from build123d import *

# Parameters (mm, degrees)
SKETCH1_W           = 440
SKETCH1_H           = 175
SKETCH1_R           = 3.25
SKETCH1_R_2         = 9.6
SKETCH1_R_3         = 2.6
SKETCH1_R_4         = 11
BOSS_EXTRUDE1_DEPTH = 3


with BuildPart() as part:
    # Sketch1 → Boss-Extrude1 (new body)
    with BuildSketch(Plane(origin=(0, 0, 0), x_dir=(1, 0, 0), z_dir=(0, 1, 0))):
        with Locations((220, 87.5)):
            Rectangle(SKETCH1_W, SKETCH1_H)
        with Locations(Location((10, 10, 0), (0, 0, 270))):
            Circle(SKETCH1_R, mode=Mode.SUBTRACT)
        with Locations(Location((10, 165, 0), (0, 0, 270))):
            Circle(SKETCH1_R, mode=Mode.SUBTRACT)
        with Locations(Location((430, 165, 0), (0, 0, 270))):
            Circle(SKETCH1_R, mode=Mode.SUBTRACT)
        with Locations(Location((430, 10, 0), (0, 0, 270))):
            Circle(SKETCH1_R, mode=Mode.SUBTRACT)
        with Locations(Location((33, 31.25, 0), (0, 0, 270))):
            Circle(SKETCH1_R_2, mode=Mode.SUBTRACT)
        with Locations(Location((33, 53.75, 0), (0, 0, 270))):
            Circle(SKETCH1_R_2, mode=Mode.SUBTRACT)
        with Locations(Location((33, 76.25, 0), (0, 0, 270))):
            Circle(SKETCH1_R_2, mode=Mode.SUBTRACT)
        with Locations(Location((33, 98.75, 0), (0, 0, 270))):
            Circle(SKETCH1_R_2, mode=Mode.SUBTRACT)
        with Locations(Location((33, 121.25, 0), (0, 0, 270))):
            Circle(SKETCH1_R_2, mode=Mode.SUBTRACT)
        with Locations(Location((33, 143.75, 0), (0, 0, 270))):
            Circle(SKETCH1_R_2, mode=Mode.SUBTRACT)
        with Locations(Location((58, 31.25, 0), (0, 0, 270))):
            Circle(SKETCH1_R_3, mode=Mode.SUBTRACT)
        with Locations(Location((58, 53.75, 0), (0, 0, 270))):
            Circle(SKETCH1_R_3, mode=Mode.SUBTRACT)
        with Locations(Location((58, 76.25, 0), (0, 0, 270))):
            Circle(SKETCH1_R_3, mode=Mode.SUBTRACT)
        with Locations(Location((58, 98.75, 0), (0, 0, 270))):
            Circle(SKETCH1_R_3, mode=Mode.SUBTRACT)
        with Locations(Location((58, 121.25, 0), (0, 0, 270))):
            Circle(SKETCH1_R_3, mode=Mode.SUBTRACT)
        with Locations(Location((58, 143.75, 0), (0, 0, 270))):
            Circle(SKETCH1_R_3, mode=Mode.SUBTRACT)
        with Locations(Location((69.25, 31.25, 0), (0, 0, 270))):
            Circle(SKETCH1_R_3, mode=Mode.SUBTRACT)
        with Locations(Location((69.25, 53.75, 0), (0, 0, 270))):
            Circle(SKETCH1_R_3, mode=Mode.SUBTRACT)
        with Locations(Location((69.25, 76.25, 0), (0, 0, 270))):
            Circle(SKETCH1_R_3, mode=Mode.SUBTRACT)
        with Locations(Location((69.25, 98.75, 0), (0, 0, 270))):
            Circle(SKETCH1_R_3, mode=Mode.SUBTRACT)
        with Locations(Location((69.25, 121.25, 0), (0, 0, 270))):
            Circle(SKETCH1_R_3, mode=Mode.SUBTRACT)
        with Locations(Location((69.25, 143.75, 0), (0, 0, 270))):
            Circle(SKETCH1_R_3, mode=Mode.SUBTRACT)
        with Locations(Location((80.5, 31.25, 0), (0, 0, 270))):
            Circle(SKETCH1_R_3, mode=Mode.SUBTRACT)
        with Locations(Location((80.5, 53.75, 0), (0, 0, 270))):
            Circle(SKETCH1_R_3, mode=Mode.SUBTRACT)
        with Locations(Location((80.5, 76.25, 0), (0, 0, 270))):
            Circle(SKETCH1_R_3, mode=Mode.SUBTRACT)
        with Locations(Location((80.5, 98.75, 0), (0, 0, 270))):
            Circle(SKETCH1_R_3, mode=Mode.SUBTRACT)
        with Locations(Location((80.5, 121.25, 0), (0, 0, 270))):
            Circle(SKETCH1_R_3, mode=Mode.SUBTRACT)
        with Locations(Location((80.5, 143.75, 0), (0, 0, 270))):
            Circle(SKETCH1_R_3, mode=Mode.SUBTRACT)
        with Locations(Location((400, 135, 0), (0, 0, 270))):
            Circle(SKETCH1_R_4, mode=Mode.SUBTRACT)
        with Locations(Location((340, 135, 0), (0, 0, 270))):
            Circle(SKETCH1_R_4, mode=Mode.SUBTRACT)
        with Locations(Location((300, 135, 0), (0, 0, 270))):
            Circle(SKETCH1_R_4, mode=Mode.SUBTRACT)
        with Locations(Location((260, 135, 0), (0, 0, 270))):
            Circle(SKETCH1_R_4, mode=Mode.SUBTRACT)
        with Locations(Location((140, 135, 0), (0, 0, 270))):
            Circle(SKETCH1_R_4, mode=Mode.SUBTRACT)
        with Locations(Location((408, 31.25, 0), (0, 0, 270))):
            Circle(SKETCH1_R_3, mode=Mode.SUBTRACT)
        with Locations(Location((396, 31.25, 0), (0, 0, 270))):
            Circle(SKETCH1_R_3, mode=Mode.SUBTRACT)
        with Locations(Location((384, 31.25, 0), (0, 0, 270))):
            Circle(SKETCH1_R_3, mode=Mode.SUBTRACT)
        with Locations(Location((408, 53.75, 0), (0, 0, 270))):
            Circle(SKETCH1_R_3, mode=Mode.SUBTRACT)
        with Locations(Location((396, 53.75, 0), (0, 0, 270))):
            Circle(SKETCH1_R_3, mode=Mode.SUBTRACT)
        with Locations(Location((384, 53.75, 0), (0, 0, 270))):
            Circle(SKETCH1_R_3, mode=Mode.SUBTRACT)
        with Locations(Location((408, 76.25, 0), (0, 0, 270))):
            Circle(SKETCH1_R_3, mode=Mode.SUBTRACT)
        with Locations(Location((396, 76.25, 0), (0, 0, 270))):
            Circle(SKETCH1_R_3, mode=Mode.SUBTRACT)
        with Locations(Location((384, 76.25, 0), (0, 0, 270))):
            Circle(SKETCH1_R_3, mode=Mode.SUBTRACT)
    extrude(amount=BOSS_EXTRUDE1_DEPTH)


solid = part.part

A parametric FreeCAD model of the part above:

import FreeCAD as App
import Part
import Sketcher


def add_polygon(sketch, points):
    """Adds a closed chain of lines whose ends are joined by coincident constraints."""
    first, n = sketch.GeometryCount, len(points)
    for a, b in zip(points, points[1:] + points[:1]):
        sketch.addGeometry(Part.LineSegment(App.Vector(*a, 0), App.Vector(*b, 0)), False)
    for i in range(n):
        sketch.addConstraint(Sketcher.Constraint("Coincident", first + i, 2, first + (i + 1) % n, 1))

doc = App.newDocument("Part")
body = doc.addObject("PartDesign::Body", "Body")

# Sketch on XZ plane
sketch1 = body.newObject("Sketcher::SketchObject", "Sketch")
sketch1.AttachmentSupport = (doc.getObject("XZ_Plane"), [""])
sketch1.MapMode = "FlatFace"
add_polygon(sketch1, [(0, -175), (0, 0), (440, 0), (440, -175)])  # lines 0-3
sketch1.addGeometry(Part.Circle(App.Vector(10, -10, 0), App.Vector(0, 0, 1), 3.25), False)  # 4
sketch1.addGeometry(Part.Circle(App.Vector(33, -31.25, 0), App.Vector(0, 0, 1), 9.6), False)  # 5
sketch1.addGeometry(Part.Circle(App.Vector(58, -31.25, 0), App.Vector(0, 0, 1), 2.6), False)  # 6
sketch1.addGeometry(Part.Circle(App.Vector(69.25, -31.25, 0), App.Vector(0, 0, 1), 2.6), False)  # 7
sketch1.addGeometry(Part.Circle(App.Vector(80.5, -31.25, 0), App.Vector(0, 0, 1), 2.6), False)  # 8
sketch1.addGeometry(Part.Circle(App.Vector(33, -53.75, 0), App.Vector(0, 0, 1), 9.6), False)  # 9
sketch1.addGeometry(Part.Circle(App.Vector(58, -53.75, 0), App.Vector(0, 0, 1), 2.6), False)  # 10
sketch1.addGeometry(Part.Circle(App.Vector(69.25, -53.75, 0), App.Vector(0, 0, 1), 2.6), False)  # 11
sketch1.addGeometry(Part.Circle(App.Vector(80.5, -53.75, 0), App.Vector(0, 0, 1), 2.6), False)  # 12
sketch1.addGeometry(Part.Circle(App.Vector(33, -76.25, 0), App.Vector(0, 0, 1), 9.6), False)  # 13
sketch1.addGeometry(Part.Circle(App.Vector(58, -76.25, 0), App.Vector(0, 0, 1), 2.6), False)  # 14
sketch1.addGeometry(Part.Circle(App.Vector(69.25, -76.25, 0), App.Vector(0, 0, 1), 2.6), False)  # 15
sketch1.addGeometry(Part.Circle(App.Vector(80.5, -76.25, 0), App.Vector(0, 0, 1), 2.6), False)  # 16
sketch1.addGeometry(Part.Circle(App.Vector(430, -10, 0), App.Vector(0, 0, 1), 3.25), False)  # 17
sketch1.addGeometry(Part.Circle(App.Vector(384, -31.25, 0), App.Vector(0, 0, 1), 2.6), False)  # 18
sketch1.addGeometry(Part.Circle(App.Vector(396, -31.25, 0), App.Vector(0, 0, 1), 2.6), False)  # 19
sketch1.addGeometry(Part.Circle(App.Vector(408, -31.25, 0), App.Vector(0, 0, 1), 2.6), False)  # 20
sketch1.addGeometry(Part.Circle(App.Vector(384, -53.75, 0), App.Vector(0, 0, 1), 2.6), False)  # 21
sketch1.addGeometry(Part.Circle(App.Vector(396, -53.75, 0), App.Vector(0, 0, 1), 2.6), False)  # 22
sketch1.addGeometry(Part.Circle(App.Vector(408, -53.75, 0), App.Vector(0, 0, 1), 2.6), False)  # 23
sketch1.addGeometry(Part.Circle(App.Vector(384, -76.25, 0), App.Vector(0, 0, 1), 2.6), False)  # 24
sketch1.addGeometry(Part.Circle(App.Vector(396, -76.25, 0), App.Vector(0, 0, 1), 2.6), False)  # 25
sketch1.addGeometry(Part.Circle(App.Vector(408, -76.25, 0), App.Vector(0, 0, 1), 2.6), False)  # 26
sketch1.addGeometry(Part.Circle(App.Vector(33, -98.75, 0), App.Vector(0, 0, 1), 9.6), False)  # 27
sketch1.addGeometry(Part.Circle(App.Vector(58, -98.75, 0), App.Vector(0, 0, 1), 2.6), False)  # 28
sketch1.addGeometry(Part.Circle(App.Vector(69.25, -98.75, 0), App.Vector(0, 0, 1), 2.6), False)  # 29
sketch1.addGeometry(Part.Circle(App.Vector(80.5, -98.75, 0), App.Vector(0, 0, 1), 2.6), False)  # 30
sketch1.addGeometry(Part.Circle(App.Vector(33, -121.25, 0), App.Vector(0, 0, 1), 9.6), False)  # 31
sketch1.addGeometry(Part.Circle(App.Vector(58, -121.25, 0), App.Vector(0, 0, 1), 2.6), False)  # 32
sketch1.addGeometry(Part.Circle(App.Vector(69.25, -121.25, 0), App.Vector(0, 0, 1), 2.6), False)  # 33
sketch1.addGeometry(Part.Circle(App.Vector(80.5, -121.25, 0), App.Vector(0, 0, 1), 2.6), False)  # 34
sketch1.addGeometry(Part.Circle(App.Vector(33, -143.75, 0), App.Vector(0, 0, 1), 9.6), False)  # 35
sketch1.addGeometry(Part.Circle(App.Vector(58, -143.75, 0), App.Vector(0, 0, 1), 2.6), False)  # 36
sketch1.addGeometry(Part.Circle(App.Vector(69.25, -143.75, 0), App.Vector(0, 0, 1), 2.6), False)  # 37
sketch1.addGeometry(Part.Circle(App.Vector(80.5, -143.75, 0), App.Vector(0, 0, 1), 2.6), False)  # 38
sketch1.addGeometry(Part.Circle(App.Vector(10, -165, 0), App.Vector(0, 0, 1), 3.25), False)  # 39
sketch1.addGeometry(Part.Circle(App.Vector(140, -135, 0), App.Vector(0, 0, 1), 11), False)  # 40
sketch1.addGeometry(Part.Circle(App.Vector(260, -135, 0), App.Vector(0, 0, 1), 11), False)  # 41
sketch1.addGeometry(Part.Circle(App.Vector(300, -135, 0), App.Vector(0, 0, 1), 11), False)  # 42
sketch1.addGeometry(Part.Circle(App.Vector(340, -135, 0), App.Vector(0, 0, 1), 11), False)  # 43
sketch1.addGeometry(Part.Circle(App.Vector(400, -135, 0), App.Vector(0, 0, 1), 11), False)  # 44
sketch1.addGeometry(Part.Circle(App.Vector(430, -165, 0), App.Vector(0, 0, 1), 3.25), False)  # 45
sketch1.addConstraint([
    Sketcher.Constraint("Vertical", 0),
    Sketcher.Constraint("Horizontal", 1),
    Sketcher.Constraint("Vertical", 2),
    Sketcher.Constraint("Horizontal", 3),
    Sketcher.Constraint("Coincident", 0, 2, -1, 1),
    Sketcher.Constraint("Equal", 6, 7),
    Sketcher.Constraint("Equal", 7, 8),
    Sketcher.Constraint("Equal", 5, 9),
    Sketcher.Constraint("Equal", 8, 10),
    Sketcher.Constraint("Equal", 10, 11),
    Sketcher.Constraint("Equal", 11, 12),
    Sketcher.Constraint("Equal", 9, 13),
    Sketcher.Constraint("Equal", 12, 14),
    Sketcher.Constraint("Equal", 14, 15),
    Sketcher.Constraint("Equal", 15, 16),
    Sketcher.Constraint("Equal", 4, 17),
    Sketcher.Constraint("Equal", 16, 18),
    Sketcher.Constraint("Equal", 18, 19),
    Sketcher.Constraint("Equal", 19, 20),
    Sketcher.Constraint("Equal", 20, 21),
    Sketcher.Constraint("Equal", 21, 22),
    Sketcher.Constraint("Equal", 22, 23),
    Sketcher.Constraint("Equal", 23, 24),
    Sketcher.Constraint("Equal", 24, 25),
    Sketcher.Constraint("Equal", 25, 26),
    Sketcher.Constraint("Equal", 13, 27),
    Sketcher.Constraint("Equal", 26, 28),
    Sketcher.Constraint("Equal", 28, 29),
    Sketcher.Constraint("Equal", 29, 30),
    Sketcher.Constraint("Equal", 27, 31),
    Sketcher.Constraint("Equal", 30, 32),
    Sketcher.Constraint("Equal", 32, 33),
    Sketcher.Constraint("Equal", 33, 34),
    Sketcher.Constraint("Equal", 31, 35),
    Sketcher.Constraint("Equal", 34, 36),
    Sketcher.Constraint("Equal", 36, 37),
    Sketcher.Constraint("Equal", 37, 38),
    Sketcher.Constraint("Equal", 17, 39),
    Sketcher.Constraint("Equal", 40, 41),
    Sketcher.Constraint("Equal", 41, 42),
    Sketcher.Constraint("Equal", 42, 43),
    Sketcher.Constraint("Equal", 43, 44),
    Sketcher.Constraint("Equal", 39, 45),
    Sketcher.Constraint("Horizontal", 5, 3, 6, 3),
    Sketcher.Constraint("Horizontal", 6, 3, 7, 3),
    Sketcher.Constraint("Horizontal", 7, 3, 8, 3),
    Sketcher.Constraint("Horizontal", 9, 3, 10, 3),
    Sketcher.Constraint("Horizontal", 10, 3, 11, 3),
    Sketcher.Constraint("Horizontal", 11, 3, 12, 3),
    Sketcher.Constraint("Horizontal", 13, 3, 14, 3),
    Sketcher.Constraint("Horizontal", 14, 3, 15, 3),
    Sketcher.Constraint("Horizontal", 15, 3, 16, 3),
    Sketcher.Constraint("Horizontal", 4, 3, 17, 3),
    Sketcher.Constraint("Horizontal", 8, 3, 18, 3),
    Sketcher.Constraint("Horizontal", 18, 3, 19, 3),
    Sketcher.Constraint("Horizontal", 19, 3, 20, 3),
    Sketcher.Constraint("Horizontal", 12, 3, 21, 3),
    Sketcher.Constraint("Horizontal", 21, 3, 22, 3),
    Sketcher.Constraint("Horizontal", 22, 3, 23, 3),
    Sketcher.Constraint("Horizontal", 16, 3, 24, 3),
    Sketcher.Constraint("Horizontal", 24, 3, 25, 3),
    Sketcher.Constraint("Horizontal", 25, 3, 26, 3),
    Sketcher.Constraint("Horizontal", 27, 3, 28, 3),
    Sketcher.Constraint("Horizontal", 28, 3, 29, 3),
    Sketcher.Constraint("Horizontal", 29, 3, 30, 3),
    Sketcher.Constraint("Horizontal", 31, 3, 32, 3),
    Sketcher.Constraint("Horizontal", 32, 3, 33, 3),
    Sketcher.Constraint("Horizontal", 33, 3, 34, 3),
    Sketcher.Constraint("Horizontal", 35, 3, 36, 3),
    Sketcher.Constraint("Horizontal", 36, 3, 37, 3),
    Sketcher.Constraint("Horizontal", 37, 3, 38, 3),
    Sketcher.Constraint("Horizontal", 40, 3, 41, 3),
    Sketcher.Constraint("Horizontal", 41, 3, 42, 3),
    Sketcher.Constraint("Horizontal", 42, 3, 43, 3),
    Sketcher.Constraint("Horizontal", 43, 3, 44, 3),
    Sketcher.Constraint("Horizontal", 39, 3, 45, 3),
    Sketcher.Constraint("Vertical", 5, 3, 9, 3),
    Sketcher.Constraint("Vertical", 6, 3, 10, 3),
    Sketcher.Constraint("Vertical", 7, 3, 11, 3),
    Sketcher.Constraint("Vertical", 8, 3, 12, 3),
    Sketcher.Constraint("Vertical", 9, 3, 13, 3),
    Sketcher.Constraint("Vertical", 10, 3, 14, 3),
    Sketcher.Constraint("Vertical", 11, 3, 15, 3),
    Sketcher.Constraint("Vertical", 12, 3, 16, 3),
    Sketcher.Constraint("Vertical", 18, 3, 21, 3),
    Sketcher.Constraint("Vertical", 19, 3, 22, 3),
    Sketcher.Constraint("Vertical", 20, 3, 23, 3),
    Sketcher.Constraint("Vertical", 21, 3, 24, 3),
    Sketcher.Constraint("Vertical", 22, 3, 25, 3),
    Sketcher.Constraint("Vertical", 23, 3, 26, 3),
    Sketcher.Constraint("Vertical", 13, 3, 27, 3),
    Sketcher.Constraint("Vertical", 14, 3, 28, 3),
    Sketcher.Constraint("Vertical", 15, 3, 29, 3),
    Sketcher.Constraint("Vertical", 16, 3, 30, 3),
    Sketcher.Constraint("Vertical", 27, 3, 31, 3),
    Sketcher.Constraint("Vertical", 28, 3, 32, 3),
    Sketcher.Constraint("Vertical", 29, 3, 33, 3),
    Sketcher.Constraint("Vertical", 30, 3, 34, 3),
    Sketcher.Constraint("Vertical", 31, 3, 35, 3),
    Sketcher.Constraint("Vertical", 32, 3, 36, 3),
    Sketcher.Constraint("Vertical", 33, 3, 37, 3),
    Sketcher.Constraint("Vertical", 34, 3, 38, 3),
    Sketcher.Constraint("Vertical", 4, 3, 39, 3),
    Sketcher.Constraint("Vertical", 17, 3, 45, 3),
    Sketcher.Constraint("Diameter", 40, 22.0),
    Sketcher.Constraint("Diameter", 4, 6.5),
    Sketcher.Constraint("Diameter", 5, 19.2),
    Sketcher.Constraint("Diameter", 6, 5.2),
    Sketcher.Constraint("DistanceX", 1, 1, 1, 2, 440.0),
    Sketcher.Constraint("DistanceY", 0, 1, 0, 2, 175.0),
    Sketcher.Constraint("DistanceX", -1, 1, 4, 3, 10.0),
    Sketcher.Constraint("DistanceY", 4, 3, -1, 1, 10.0),
    Sketcher.Constraint("DistanceX", -1, 1, 5, 3, 33.0),
    Sketcher.Constraint("DistanceX", -1, 1, 6, 3, 58.0),
    Sketcher.Constraint("DistanceX", -1, 1, 17, 3, 430.0),
    Sketcher.Constraint("DistanceX", -1, 1, 18, 3, 384.0),
    Sketcher.Constraint("DistanceX", -1, 1, 19, 3, 396.0),
    Sketcher.Constraint("DistanceX", -1, 1, 20, 3, 408.0),
    Sketcher.Constraint("DistanceY", 39, 3, -1, 1, 165.0),
    Sketcher.Constraint("DistanceX", -1, 1, 40, 3, 140.0),
    Sketcher.Constraint("DistanceY", 40, 3, -1, 1, 135.0),
    Sketcher.Constraint("DistanceX", -1, 1, 41, 3, 260.0),
    Sketcher.Constraint("DistanceX", -1, 1, 42, 3, 300.0),
    Sketcher.Constraint("DistanceX", -1, 1, 43, 3, 340.0),
    Sketcher.Constraint("DistanceX", -1, 1, 44, 3, 400.0),
    Sketcher.Constraint("DistanceY", 13, 3, 5, 3, 45.0),
    Sketcher.Constraint("DistanceY", 27, 3, 9, 3, 45.0),
    Sketcher.Constraint("DistanceY", 31, 3, 13, 3, 45.0),
    Sketcher.Constraint("DistanceY", 35, 3, 27, 3, 45.0),
    Sketcher.Constraint("DistanceX", -1, 1, 8, 3, 80.5),
    Sketcher.Constraint("DistanceY", 9, 3, 5, 3, 22.5),
    Sketcher.Constraint("DistanceY", 5, 3, -1, 1, 31.25),
    Sketcher.Constraint("DistanceX", -1, 1, 7, 3, 69.25),
])
pad1 = body.newObject("PartDesign::Pad", "Pad")
pad1.Profile = sketch1
pad1.Length = 3
pad1.Reversed = True

doc.recompute()
